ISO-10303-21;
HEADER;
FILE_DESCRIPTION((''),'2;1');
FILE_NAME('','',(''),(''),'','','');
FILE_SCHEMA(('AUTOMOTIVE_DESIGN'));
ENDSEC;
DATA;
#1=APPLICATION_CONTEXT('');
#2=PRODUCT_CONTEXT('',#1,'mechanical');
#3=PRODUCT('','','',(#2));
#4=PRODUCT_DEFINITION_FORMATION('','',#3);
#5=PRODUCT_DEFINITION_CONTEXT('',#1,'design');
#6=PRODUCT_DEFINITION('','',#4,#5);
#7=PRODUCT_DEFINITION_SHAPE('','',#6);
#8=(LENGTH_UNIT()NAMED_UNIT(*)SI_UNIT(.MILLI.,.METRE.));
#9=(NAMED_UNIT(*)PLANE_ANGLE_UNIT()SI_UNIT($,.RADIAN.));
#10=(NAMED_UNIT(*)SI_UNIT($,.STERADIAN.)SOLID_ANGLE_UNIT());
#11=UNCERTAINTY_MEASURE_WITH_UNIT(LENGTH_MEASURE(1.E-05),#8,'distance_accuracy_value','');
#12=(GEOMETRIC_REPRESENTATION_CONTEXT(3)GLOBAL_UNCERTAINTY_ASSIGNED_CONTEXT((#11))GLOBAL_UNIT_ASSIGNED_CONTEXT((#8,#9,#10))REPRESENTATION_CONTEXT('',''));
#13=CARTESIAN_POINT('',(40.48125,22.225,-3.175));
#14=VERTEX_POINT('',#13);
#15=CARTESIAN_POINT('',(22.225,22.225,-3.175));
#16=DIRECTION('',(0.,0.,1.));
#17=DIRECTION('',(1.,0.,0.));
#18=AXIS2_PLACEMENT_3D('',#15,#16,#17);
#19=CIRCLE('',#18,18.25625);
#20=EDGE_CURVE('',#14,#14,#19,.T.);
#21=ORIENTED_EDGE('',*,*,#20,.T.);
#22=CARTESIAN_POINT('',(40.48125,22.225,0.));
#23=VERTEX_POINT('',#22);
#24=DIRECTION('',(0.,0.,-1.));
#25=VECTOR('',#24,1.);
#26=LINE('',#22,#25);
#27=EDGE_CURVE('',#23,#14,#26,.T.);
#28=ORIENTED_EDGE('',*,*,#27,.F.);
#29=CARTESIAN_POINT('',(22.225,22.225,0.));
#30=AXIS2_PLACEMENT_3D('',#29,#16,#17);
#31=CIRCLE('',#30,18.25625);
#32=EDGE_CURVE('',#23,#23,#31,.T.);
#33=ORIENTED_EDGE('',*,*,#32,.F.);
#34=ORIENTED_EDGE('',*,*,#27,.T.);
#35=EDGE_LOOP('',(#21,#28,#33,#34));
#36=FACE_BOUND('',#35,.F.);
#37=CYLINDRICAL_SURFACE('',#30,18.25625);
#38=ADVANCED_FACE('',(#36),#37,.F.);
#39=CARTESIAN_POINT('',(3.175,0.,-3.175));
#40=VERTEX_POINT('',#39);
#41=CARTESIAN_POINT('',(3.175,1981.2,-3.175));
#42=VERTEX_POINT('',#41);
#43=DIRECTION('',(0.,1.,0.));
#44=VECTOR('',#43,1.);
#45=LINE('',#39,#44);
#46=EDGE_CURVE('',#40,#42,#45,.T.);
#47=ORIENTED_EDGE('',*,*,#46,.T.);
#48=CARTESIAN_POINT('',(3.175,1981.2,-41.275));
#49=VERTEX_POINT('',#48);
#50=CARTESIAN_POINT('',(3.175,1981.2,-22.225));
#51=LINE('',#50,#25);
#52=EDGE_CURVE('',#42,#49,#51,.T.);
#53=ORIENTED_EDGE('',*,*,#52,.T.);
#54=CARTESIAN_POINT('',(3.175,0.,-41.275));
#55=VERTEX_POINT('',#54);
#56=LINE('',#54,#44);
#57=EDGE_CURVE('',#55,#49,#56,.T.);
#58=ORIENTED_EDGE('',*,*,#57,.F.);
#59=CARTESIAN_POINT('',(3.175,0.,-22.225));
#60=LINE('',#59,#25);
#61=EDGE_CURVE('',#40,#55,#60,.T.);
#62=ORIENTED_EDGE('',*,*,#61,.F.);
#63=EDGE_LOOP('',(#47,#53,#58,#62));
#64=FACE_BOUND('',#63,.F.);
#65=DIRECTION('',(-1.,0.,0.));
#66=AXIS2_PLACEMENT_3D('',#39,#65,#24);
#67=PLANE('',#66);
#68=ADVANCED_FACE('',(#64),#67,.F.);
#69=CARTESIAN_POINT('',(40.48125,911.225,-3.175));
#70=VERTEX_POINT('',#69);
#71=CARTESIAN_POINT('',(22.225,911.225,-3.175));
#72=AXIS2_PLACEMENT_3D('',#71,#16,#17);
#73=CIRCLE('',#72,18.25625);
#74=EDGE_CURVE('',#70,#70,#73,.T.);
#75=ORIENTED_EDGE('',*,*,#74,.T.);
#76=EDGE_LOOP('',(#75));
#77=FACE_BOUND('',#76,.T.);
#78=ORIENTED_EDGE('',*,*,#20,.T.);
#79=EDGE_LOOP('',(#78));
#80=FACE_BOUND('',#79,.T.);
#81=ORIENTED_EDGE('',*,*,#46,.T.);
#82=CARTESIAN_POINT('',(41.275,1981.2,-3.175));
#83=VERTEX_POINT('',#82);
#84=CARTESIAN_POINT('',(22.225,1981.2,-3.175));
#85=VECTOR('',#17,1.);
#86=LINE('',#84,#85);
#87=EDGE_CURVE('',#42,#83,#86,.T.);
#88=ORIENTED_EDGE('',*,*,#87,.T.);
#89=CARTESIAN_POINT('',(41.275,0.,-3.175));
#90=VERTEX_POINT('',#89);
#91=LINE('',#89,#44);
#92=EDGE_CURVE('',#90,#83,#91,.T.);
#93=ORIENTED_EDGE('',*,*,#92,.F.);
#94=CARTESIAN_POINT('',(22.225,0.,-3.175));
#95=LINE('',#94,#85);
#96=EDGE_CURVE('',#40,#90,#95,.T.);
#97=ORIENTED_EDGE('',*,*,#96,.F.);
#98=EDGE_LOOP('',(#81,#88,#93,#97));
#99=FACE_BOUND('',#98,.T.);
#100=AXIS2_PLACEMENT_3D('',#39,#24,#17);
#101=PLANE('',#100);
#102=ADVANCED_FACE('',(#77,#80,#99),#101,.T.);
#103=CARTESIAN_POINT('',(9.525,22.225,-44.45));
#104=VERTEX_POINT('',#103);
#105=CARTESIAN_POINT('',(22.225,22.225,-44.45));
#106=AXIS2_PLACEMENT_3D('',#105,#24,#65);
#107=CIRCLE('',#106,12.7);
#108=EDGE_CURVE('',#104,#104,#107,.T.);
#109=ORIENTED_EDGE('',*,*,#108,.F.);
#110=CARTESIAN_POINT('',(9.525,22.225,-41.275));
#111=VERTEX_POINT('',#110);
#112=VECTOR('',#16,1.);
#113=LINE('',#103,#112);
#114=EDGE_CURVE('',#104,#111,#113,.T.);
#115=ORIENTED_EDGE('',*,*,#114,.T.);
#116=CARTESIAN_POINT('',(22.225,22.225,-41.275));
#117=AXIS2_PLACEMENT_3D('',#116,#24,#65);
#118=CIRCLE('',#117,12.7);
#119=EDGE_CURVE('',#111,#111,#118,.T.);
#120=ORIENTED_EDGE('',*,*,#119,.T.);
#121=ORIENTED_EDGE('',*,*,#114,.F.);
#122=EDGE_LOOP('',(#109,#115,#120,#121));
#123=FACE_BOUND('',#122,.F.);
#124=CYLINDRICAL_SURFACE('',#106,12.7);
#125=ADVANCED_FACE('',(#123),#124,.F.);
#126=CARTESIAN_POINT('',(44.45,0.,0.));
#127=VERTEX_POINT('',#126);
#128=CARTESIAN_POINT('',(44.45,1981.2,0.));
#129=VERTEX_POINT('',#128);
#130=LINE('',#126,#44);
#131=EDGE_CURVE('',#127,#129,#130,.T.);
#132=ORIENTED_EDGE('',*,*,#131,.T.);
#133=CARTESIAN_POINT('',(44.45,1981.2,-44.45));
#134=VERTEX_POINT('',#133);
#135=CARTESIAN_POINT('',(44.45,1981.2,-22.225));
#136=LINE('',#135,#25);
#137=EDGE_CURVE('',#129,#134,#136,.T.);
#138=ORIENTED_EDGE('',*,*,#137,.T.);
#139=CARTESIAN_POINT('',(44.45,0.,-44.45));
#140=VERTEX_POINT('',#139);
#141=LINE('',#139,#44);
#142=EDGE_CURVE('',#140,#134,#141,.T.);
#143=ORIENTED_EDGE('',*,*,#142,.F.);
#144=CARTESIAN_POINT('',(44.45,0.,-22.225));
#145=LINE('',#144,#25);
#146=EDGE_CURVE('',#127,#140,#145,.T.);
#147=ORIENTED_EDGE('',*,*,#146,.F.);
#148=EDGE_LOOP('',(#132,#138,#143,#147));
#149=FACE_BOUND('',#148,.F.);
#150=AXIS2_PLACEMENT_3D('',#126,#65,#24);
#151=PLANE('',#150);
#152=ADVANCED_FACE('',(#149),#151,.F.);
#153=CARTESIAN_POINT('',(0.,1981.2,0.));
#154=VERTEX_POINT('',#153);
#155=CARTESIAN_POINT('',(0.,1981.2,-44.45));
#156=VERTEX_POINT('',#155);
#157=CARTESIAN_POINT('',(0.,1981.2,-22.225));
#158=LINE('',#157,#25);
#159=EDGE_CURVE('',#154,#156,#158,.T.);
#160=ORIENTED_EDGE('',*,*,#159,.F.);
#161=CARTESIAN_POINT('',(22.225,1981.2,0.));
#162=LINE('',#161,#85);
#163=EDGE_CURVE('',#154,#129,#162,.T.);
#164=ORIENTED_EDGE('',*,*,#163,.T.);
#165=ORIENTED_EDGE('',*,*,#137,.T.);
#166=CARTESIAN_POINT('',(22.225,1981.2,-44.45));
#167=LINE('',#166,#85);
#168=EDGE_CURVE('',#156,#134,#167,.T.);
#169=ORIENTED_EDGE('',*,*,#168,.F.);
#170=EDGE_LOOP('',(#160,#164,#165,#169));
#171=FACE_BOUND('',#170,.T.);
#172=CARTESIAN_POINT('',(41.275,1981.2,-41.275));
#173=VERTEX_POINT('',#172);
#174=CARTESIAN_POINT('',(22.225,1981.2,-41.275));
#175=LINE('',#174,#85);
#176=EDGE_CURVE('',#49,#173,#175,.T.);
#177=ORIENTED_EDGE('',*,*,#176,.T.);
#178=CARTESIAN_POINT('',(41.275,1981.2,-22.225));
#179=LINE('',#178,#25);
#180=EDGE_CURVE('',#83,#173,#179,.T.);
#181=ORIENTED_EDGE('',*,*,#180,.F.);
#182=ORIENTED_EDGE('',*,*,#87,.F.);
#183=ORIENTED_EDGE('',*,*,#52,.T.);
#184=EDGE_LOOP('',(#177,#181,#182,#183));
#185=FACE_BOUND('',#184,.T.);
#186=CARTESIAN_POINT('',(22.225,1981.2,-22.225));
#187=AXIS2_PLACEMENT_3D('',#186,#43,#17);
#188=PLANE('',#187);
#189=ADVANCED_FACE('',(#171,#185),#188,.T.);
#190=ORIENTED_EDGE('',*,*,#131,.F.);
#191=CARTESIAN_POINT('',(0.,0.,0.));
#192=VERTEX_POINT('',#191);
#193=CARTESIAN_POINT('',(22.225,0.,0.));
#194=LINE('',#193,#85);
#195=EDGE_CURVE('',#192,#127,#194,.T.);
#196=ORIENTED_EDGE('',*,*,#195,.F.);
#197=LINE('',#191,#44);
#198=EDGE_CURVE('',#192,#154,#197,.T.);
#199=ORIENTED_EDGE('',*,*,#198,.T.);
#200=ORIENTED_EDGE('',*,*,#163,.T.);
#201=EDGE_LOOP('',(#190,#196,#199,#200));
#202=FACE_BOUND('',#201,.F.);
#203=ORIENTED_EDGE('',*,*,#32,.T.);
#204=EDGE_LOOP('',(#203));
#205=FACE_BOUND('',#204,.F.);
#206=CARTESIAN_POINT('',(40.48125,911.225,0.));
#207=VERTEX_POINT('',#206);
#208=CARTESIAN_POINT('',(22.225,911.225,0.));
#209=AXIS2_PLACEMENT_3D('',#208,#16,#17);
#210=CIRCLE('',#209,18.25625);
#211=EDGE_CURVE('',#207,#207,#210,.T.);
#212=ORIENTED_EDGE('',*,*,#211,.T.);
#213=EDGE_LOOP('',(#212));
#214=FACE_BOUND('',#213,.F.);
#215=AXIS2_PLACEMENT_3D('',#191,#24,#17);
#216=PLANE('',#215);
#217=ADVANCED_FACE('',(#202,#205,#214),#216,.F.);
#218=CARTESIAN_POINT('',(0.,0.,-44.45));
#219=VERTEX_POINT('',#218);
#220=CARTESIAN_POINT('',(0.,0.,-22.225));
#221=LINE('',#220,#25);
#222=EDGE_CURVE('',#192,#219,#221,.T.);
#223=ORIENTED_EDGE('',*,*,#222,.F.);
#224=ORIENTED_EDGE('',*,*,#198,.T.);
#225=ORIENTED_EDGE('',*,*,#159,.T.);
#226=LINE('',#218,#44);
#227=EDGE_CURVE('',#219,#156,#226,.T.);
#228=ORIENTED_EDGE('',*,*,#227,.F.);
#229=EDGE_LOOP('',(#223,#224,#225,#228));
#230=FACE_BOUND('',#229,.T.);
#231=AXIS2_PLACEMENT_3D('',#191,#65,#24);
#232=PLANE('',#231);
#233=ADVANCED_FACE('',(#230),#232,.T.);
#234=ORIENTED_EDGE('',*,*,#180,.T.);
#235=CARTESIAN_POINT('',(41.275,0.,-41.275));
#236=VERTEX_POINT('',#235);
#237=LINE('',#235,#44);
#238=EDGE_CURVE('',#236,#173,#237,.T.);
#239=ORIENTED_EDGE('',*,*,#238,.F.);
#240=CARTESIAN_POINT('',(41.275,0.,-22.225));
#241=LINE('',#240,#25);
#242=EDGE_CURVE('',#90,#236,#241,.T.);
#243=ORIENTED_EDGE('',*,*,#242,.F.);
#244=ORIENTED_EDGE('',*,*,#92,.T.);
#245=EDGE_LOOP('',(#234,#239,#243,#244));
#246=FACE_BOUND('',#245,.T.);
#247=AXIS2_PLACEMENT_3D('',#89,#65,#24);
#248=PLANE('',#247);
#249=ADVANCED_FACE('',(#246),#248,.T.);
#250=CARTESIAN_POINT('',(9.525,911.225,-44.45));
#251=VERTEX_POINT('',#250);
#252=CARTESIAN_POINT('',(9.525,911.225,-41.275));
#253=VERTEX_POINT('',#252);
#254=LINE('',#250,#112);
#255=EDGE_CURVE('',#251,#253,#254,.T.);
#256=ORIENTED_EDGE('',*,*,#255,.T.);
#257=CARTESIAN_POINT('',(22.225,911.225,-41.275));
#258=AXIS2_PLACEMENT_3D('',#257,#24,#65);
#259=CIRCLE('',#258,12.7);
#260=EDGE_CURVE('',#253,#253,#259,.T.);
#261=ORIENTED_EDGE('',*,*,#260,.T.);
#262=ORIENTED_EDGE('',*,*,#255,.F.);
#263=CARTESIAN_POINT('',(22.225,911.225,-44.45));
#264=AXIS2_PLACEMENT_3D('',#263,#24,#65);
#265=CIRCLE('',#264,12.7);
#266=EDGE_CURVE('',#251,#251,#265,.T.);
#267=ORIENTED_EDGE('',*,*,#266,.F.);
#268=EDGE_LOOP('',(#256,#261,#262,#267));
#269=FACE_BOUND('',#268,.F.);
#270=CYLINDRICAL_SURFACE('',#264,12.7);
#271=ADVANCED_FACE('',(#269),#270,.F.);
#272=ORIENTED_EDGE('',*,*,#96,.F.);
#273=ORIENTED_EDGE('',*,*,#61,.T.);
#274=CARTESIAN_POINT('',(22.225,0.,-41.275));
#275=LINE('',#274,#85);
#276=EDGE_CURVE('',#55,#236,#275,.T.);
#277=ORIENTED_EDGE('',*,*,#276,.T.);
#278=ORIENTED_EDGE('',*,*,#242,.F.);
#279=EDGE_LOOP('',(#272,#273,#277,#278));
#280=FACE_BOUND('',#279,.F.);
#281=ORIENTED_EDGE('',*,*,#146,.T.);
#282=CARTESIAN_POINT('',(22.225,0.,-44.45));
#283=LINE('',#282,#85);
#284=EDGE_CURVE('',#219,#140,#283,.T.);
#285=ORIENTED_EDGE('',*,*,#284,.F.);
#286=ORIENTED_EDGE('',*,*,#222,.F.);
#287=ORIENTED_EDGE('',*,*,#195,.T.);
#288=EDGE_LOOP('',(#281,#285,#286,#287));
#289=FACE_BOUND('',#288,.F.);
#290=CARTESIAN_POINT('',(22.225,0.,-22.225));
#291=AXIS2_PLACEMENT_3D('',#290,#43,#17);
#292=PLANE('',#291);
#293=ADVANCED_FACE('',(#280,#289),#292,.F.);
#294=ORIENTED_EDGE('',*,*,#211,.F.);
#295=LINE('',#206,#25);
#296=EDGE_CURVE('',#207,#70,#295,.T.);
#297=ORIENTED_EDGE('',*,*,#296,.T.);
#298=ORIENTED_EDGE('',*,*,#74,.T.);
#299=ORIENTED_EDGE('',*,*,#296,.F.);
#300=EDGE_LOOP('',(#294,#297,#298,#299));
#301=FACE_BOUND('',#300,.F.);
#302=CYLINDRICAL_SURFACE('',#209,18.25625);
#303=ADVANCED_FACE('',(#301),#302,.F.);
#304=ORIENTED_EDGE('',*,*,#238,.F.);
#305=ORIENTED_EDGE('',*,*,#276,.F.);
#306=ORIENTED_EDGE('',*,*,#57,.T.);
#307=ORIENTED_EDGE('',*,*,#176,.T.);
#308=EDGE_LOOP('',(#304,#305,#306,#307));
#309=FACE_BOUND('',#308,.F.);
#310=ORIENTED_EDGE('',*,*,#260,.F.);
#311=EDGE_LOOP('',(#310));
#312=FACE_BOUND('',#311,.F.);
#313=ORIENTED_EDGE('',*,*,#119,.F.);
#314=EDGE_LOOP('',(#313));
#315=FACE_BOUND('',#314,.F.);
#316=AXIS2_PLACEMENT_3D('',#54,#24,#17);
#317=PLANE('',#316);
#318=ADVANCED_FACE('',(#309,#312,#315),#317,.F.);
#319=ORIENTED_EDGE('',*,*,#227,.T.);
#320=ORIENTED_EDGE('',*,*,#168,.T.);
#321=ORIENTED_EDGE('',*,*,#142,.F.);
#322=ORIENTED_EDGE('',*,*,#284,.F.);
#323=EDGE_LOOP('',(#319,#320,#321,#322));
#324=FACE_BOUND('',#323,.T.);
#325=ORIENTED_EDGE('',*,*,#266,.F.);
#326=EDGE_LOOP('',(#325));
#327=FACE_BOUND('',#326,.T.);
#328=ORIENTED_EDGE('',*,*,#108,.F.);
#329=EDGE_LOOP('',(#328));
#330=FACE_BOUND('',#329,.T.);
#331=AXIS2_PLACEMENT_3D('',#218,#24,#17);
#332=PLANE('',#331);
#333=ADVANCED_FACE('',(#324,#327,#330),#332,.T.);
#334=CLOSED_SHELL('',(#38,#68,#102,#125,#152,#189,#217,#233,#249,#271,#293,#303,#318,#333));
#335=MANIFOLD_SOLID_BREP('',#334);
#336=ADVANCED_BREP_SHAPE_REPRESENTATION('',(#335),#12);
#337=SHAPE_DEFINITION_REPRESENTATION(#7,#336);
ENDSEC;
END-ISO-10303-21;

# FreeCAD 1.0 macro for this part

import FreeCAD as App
import Part
import Sketcher

V = App.Vector
Q = App.Units.Quantity


def add_polygon(sketch, points):
    """Adds a closed chain of lines whose ends are joined by coincident constraints."""
    first, n = sketch.GeometryCount, len(points)
    for a, b in zip(points, points[1:] + points[:1]):
        sketch.addGeometry(Part.LineSegment(App.Vector(*a, 0), App.Vector(*b, 0)), False)
    for i in range(n):
        sketch.addConstraint(Sketcher.Constraint("Coincident", first + i, 2, first + (i + 1) % n, 1))

doc = App.newDocument("Part")
body = doc.addObject("PartDesign::Body", "Body")

sketch1 = doc.addObject("Sketcher::SketchObject", "Sketch")
body.addObject(sketch1)
sketch1.AttachmentSupport = (doc.XZ_Plane, [""])
sketch1.MapMode = "FlatFace"
add_polygon(sketch1, [(0, -44.45), (0, 0), (44.45, 0), (44.45, -44.45)])
add_polygon(sketch1, [(41.275, -3.175), (3.175, -3.175), (3.175, -41.275), (41.275, -41.275)])
sketch1.addConstraint([
    Sketcher.Constraint("Vertical", 0),
    Sketcher.Constraint("Horizontal", 1),
    Sketcher.Constraint("Vertical", 2),
    Sketcher.Constraint("Horizontal", 3),
    Sketcher.Constraint("Horizontal", 4),
    Sketcher.Constraint("Vertical", 5),
    Sketcher.Constraint("Horizontal", 6),
    Sketcher.Constraint("Vertical", 7),
    Sketcher.Constraint("Coincident", 0, 2, -1, 1),
    Sketcher.Constraint("Equal", 3, 0),
    Sketcher.Constraint("Equal", 6, 5),
    Sketcher.Constraint("DistanceX", 4, 2, 4, 1, Q("1.5 in")),
    Sketcher.Constraint("DistanceX", 1, 1, 1, 2, Q("1.75 in")),
    Sketcher.Constraint("DistanceX", -1, 1, 4, 2, Q("0.125 in")),
    Sketcher.Constraint("DistanceY", 4, 2, -1, 1, Q("0.125 in")),
])
pad1 = doc.addObject("PartDesign::Pad", "Pad")
body.addObject(pad1)
pad1.Profile = sketch1
pad1.Length = Q("78 in")
pad1.Reversed = True

sketch2 = doc.addObject("Sketcher::SketchObject", "Sketch001")
body.addObject(sketch2)
sketch2.AttachmentSupport = (doc.XY_Plane, [""])
sketch2.MapMode = "FlatFace"
sketch2.addGeometry(Part.Circle(V(22.225, 22.225, 0), V(0, 0, 1), 18.25625), False)
sketch2.addConstraint([
    Sketcher.Constraint("Diameter", 0, Q("1.4375 in")),
    Sketcher.Constraint("DistanceX", -1, 1, 0, 3, Q("0.875 in")),
    Sketcher.Constraint("DistanceY", -1, 1, 0, 3, Q("0.875 in")),
])
pocket1 = doc.addObject("PartDesign::Pocket", "Pocket")
body.addObject(pocket1)
pocket1.Profile = sketch2
pocket1.Type = "UpToFirst"

sketch3 = doc.addObject("Sketcher::SketchObject", "Sketch002")
body.addObject(sketch3)
sketch3.AttachmentSupport = (doc.XY_Plane, [""])
sketch3.MapMode = "FlatFace"
sketch3.addGeometry(Part.Circle(V(22.225, 911.225, 0), V(0, 0, 1), 18.25625), False)
sketch3.addConstraint([
    Sketcher.Constraint("Diameter", 0, Q("1.4375 in")),
    Sketcher.Constraint("DistanceX", -1, 1, 0, 3, Q("0.875 in")),
    Sketcher.Constraint("DistanceY", -1, 1, 0, 3, Q("35.875 in")),
])
pocket2 = doc.addObject("PartDesign::Pocket", "Pocket001")
body.addObject(pocket2)
pocket2.Profile = sketch3
pocket2.Type = "UpToFirst"

sketch4 = doc.addObject("Sketcher::SketchObject", "Sketch003")
body.addObject(sketch4)
sketch4.AttachmentSupport = (doc.XY_Plane, [""])
sketch4.MapMode = "FlatFace"
sketch4.AttachmentOffset = App.Placement(V(0, 0, -1.75 * 25.4), App.Rotation())
sketch4.addGeometry(Part.Circle(V(22.225, 911.225, 0), V(0, 0, 1), 12.7), False)
sketch4.addConstraint([
    Sketcher.Constraint("Diameter", 0, Q("1 in")),
    Sketcher.Constraint("DistanceX", -1, 1, 0, 3, Q("0.875 in")),
    Sketcher.Constraint("DistanceY", -1, 1, 0, 3, Q("35.875 in")),
])
pocket3 = doc.addObject("PartDesign::Pocket", "Pocket002")
body.addObject(pocket3)
pocket3.Profile = sketch4
pocket3.Type = "UpToFirst"
pocket3.Reversed = True

sketch5 = doc.addObject("Sketcher::SketchObject", "Sketch004")
body.addObject(sketch5)
sketch5.AttachmentSupport = (doc.XY_Plane, [""])
sketch5.MapMode = "FlatFace"
sketch5.AttachmentOffset = App.Placement(V(0, 0, -1.75 * 25.4), App.Rotation())
sketch5.addGeometry(Part.Circle(V(22.225, 22.225, 0), V(0, 0, 1), 12.7), False)
sketch5.addConstraint([
    Sketcher.Constraint("Diameter", 0, Q("1 in")),
    Sketcher.Constraint("DistanceX", -1, 1, 0, 3, Q("0.875 in")),
    Sketcher.Constraint("DistanceY", -1, 1, 0, 3, Q("0.875 in")),
])
pocket4 = doc.addObject("PartDesign::Pocket", "Pocket003")
body.addObject(pocket4)
pocket4.Profile = sketch5
pocket4.Type = "UpToFirst"
pocket4.Reversed = True

doc.recompute()
